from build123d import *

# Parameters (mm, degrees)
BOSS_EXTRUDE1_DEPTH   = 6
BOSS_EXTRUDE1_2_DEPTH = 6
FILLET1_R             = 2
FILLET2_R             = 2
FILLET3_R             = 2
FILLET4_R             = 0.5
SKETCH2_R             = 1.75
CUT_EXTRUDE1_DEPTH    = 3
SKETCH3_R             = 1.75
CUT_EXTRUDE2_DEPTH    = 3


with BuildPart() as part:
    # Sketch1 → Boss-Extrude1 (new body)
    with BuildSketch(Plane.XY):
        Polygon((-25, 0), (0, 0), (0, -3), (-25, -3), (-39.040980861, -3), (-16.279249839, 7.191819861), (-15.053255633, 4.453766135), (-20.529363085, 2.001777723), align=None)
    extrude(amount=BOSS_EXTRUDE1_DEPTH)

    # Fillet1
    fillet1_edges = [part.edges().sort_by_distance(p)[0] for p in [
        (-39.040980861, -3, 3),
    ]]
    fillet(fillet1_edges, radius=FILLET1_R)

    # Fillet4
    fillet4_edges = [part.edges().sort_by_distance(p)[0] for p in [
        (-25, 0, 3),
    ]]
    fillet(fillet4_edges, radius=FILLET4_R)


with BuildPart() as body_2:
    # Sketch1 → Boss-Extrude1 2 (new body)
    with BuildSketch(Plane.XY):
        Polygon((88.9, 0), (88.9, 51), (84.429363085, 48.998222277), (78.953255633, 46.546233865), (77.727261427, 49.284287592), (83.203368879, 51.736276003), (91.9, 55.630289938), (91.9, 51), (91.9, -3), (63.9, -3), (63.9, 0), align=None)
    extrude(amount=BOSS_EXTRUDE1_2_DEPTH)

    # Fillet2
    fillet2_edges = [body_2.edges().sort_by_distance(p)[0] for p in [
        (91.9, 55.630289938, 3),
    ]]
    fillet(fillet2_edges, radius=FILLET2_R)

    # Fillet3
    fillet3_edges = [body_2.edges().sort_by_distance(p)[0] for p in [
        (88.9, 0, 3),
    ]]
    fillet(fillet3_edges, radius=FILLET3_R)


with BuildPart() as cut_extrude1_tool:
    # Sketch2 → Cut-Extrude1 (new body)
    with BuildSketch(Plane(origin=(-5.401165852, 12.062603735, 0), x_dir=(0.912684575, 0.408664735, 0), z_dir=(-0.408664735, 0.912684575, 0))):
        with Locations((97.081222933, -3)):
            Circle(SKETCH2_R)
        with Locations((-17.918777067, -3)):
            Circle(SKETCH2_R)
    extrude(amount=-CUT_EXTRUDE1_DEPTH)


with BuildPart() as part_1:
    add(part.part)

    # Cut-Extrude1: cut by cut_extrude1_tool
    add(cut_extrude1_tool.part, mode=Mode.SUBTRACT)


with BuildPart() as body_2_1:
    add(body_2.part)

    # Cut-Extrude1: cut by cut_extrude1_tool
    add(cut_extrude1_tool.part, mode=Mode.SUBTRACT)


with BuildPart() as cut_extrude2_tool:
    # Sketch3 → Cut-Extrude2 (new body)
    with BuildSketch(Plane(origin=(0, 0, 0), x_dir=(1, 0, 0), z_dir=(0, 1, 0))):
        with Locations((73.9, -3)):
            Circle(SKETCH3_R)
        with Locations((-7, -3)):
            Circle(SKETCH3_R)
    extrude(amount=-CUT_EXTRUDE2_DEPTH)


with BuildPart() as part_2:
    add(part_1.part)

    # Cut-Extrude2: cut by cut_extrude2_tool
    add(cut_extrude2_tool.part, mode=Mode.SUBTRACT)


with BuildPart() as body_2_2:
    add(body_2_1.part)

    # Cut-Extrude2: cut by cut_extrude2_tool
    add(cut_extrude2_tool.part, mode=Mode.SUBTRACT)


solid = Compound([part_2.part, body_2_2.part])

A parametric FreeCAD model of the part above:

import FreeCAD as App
import Part
import Sketcher

V = App.Vector


def edges_at(feature, points):
    """Names of the edges that pass closest to the given points."""
    edges = feature.Shape.Edges
    near = lambda p: min(range(len(edges)), key=lambda i: edges[i].distToShape(Part.Vertex(*p))[0])
    return sorted({f"Edge{near(p) + 1}" for p in points})

doc = App.newDocument("Part")
body = doc.addObject("PartDesign::Body", "Body")

# Sketch on XY plane
sketch1 = body.newObject("Sketcher::SketchObject", "Sketch")
sketch1.AttachmentSupport = (doc.getObject("XY_Plane"), [""])
sketch1.MapMode = "FlatFace"
sketch1.addGeometry([
    Part.LineSegment(V(0, 0, 0), V(-25, 0, 0)),  # 0
    Part.LineSegment(V(-25, 0, 0), V(-20.529363, 2.001778, 0)),  # 1
    Part.LineSegment(V(-20.529363, 2.001778, 0), V(-15.053256, 4.453766, 0)),  # 2
    Part.LineSegment(V(-15.053256, 4.453766, 0), V(-16.27925, 7.19182, 0)),  # 3
    Part.LineSegment(V(-16.27925, 7.19182, 0), V(-39.040981, -3, 0)),  # 4
    Part.LineSegment(V(-39.040981, -3, 0), V(0, -3, 0)),  # 5
    Part.LineSegment(V(0, -3, 0), V(0, 0, 0)),  # 6
], False)
sketch1.addConstraint([
    Sketcher.Constraint("Coincident", 0, 2, 1, 1),
    Sketcher.Constraint("Coincident", 1, 2, 2, 1),
    Sketcher.Constraint("Coincident", 2, 2, 3, 1),
    Sketcher.Constraint("Coincident", 3, 2, 4, 1),
    Sketcher.Constraint("Coincident", 4, 2, 5, 1),
    Sketcher.Constraint("Coincident", 5, 2, 6, 1),
    Sketcher.Constraint("Coincident", 6, 2, 0, 1),
    Sketcher.Constraint("Horizontal", 0),
    Sketcher.Constraint("Horizontal", 5),
    Sketcher.Constraint("Vertical", 6),
    Sketcher.Constraint("Coincident", 6, 2, -1, 1),
    Sketcher.Constraint("Parallel", 1, 2),
    Sketcher.Constraint("Perpendicular", 2, 3),
    Sketcher.Constraint("Perpendicular", 3, 4),
    Sketcher.Constraint("DistanceX", 0, 2, 0, 1, 25.0),
    Sketcher.Constraint("DistanceY", 6, 1, 6, 2, 3.0),
    Sketcher.Constraint("Distance", 2, 6.0),
    Sketcher.Constraint("Distance", 3, 3.0),
    Sketcher.Constraint("DistanceX", 5, 1, 5, 2, 39.040981),
    Sketcher.Constraint("Distance", 4, 24.939318),
])
pad1 = body.newObject("PartDesign::Pad", "Pad")
pad1.Profile = sketch1
pad1.Length = 6
doc.recompute()

fillet = body.newObject("PartDesign::Fillet", "Fillet")
fillet.Base = (pad1, edges_at(pad1, [(-39.041, -3, 3)]))
fillet.Radius = 2
doc.recompute()

fillet2 = body.newObject("PartDesign::Fillet", "Fillet001")
fillet2.Base = (fillet, edges_at(fillet, [(-25, 0, 3)]))
fillet2.Radius = 0.5
body2 = doc.addObject("PartDesign::Body", "Body001")

# Sketch on XY plane
sketch2 = body2.newObject("Sketcher::SketchObject", "Sketch001")
sketch2.AttachmentSupport = (doc.getObject("XY_Plane001"), [""])
sketch2.MapMode = "FlatFace"
sketch2.addGeometry([
    Part.LineSegment(V(88.9, 51, 0), V(88.9, 0, 0)),  # 0
    Part.LineSegment(V(88.9, 0, 0), V(63.9, 0, 0)),  # 1
    Part.LineSegment(V(63.9, 0, 0), V(63.9, -3, 0)),  # 2
    Part.LineSegment(V(63.9, -3, 0), V(91.9, -3, 0)),  # 3
    Part.LineSegment(V(91.9, -3, 0), V(91.9, 55.63029, 0)),  # 4
    Part.LineSegment(V(91.9, 55.63029, 0), V(83.203369, 51.736276, 0)),  # 5
    Part.LineSegment(V(83.203369, 51.736276, 0), V(77.727261, 49.284288, 0)),  # 6
    Part.LineSegment(V(77.727261, 49.284288, 0), V(78.953256, 46.546234, 0)),  # 7
    Part.LineSegment(V(78.953256, 46.546234, 0), V(84.429363, 48.998222, 0)),  # 8
    Part.LineSegment(V(84.429363, 48.998222, 0), V(88.9, 51, 0)),  # 9
], False)
sketch2.addConstraint([
    Sketcher.Constraint("Coincident", 0, 2, 1, 1),
    Sketcher.Constraint("Coincident", 1, 2, 2, 1),
    Sketcher.Constraint("Coincident", 2, 2, 3, 1),
    Sketcher.Constraint("Coincident", 3, 2, 4, 1),
    Sketcher.Constraint("Coincident", 4, 2, 5, 1),
    Sketcher.Constraint("Coincident", 5, 2, 6, 1),
    Sketcher.Constraint("Coincident", 6, 2, 7, 1),
    Sketcher.Constraint("Coincident", 7, 2, 8, 1),
    Sketcher.Constraint("Coincident", 8, 2, 9, 1),
    Sketcher.Constraint("Coincident", 9, 2, 0, 1),
    Sketcher.Constraint("Vertical", 0),
    Sketcher.Constraint("Horizontal", 1),
    Sketcher.Constraint("Vertical", 2),
    Sketcher.Constraint("Horizontal", 3),
    Sketcher.Constraint("Vertical", 4),
    Sketcher.Constraint("PointOnObject", 0, 2, -1),
    Sketcher.Constraint("Parallel", 5, 6),
    Sketcher.Constraint("Perpendicular", 6, 7),
    Sketcher.Constraint("Perpendicular", 7, 8),
    Sketcher.Constraint("Parallel", 8, 9),
    Sketcher.Constraint("Equal", 6, 8),
    Sketcher.Constraint("DistanceX", 1, 2, 1, 1, 25.0),
    Sketcher.Constraint("DistanceX", 3, 1, 3, 2, 28.0),
    Sketcher.Constraint("DistanceY", 0, 2, 0, 1, 51.0),
    Sketcher.Constraint("DistanceY", 2, 2, 2, 1, 3.0),
    Sketcher.Constraint("Distance", 6, 6.0),
    Sketcher.Constraint("Distance", 7, 3.0),
    Sketcher.Constraint("DistanceX", -1, 1, 0, 2, 88.9),
    Sketcher.Constraint("DistanceY", 4, 1, 4, 2, 58.63029),
    Sketcher.Constraint("DistanceX", -1, 1, 5, 2, 83.203369),
])
pad2 = body2.newObject("PartDesign::Pad", "Pad001")
pad2.Profile = sketch2
pad2.Length = 6
doc.recompute()

fillet3 = body2.newObject("PartDesign::Fillet", "Fillet002")
fillet3.Base = (pad2, edges_at(pad2, [(91.9, 55.63, 3)]))
fillet3.Radius = 2
doc.recompute()

fillet4 = body2.newObject("PartDesign::Fillet", "Fillet003")
fillet4.Base = (fillet3, edges_at(fillet3, [(88.9, 0, 3)]))
fillet4.Radius = 2
body3 = doc.addObject("PartDesign::Body", "Body002")
body3.AllowCompound = True

# Sketch on an angled plane
sketch3 = body3.newObject("Sketcher::SketchObject", "Sketch002")
sketch3.Placement = App.Placement(V(-5.401166, 12.062604, 0), App.Rotation(V(0.912684575, 0.408664735, 0), V(0, 0, -0.999999999), V(-0.408664735, 0.912684575, 0), "ZXY"))
sketch3.addGeometry([
    Part.Circle(V(97.081223, -3, 0), V(0, 0, 1), 1.75),
    Part.Circle(V(-17.918777, -3, 0), V(0, 0, 1), 1.75),
], False)
sketch3.addConstraint([
    Sketcher.Constraint("Equal", 0, 1),
    Sketcher.Constraint("Horizontal", 0, 3, 1, 3),
    Sketcher.Constraint("Diameter", 0, 3.5),
    Sketcher.Constraint("DistanceY", 0, 3, -1, 1, 3.0),
    Sketcher.Constraint("DistanceX", 1, 3, 0, 3, 115.0),
    Sketcher.Constraint("DistanceX", -1, 1, 0, 3, 97.081223),
])
pad3 = body3.newObject("PartDesign::Pad", "Pad002")
pad3.Profile = sketch3
pad3.Length = 3
pad3.Reversed = True
doc.recompute()

body4 = doc.addObject("PartDesign::Body", "Body003")
body4.BaseFeature = body3
boolean = body.newObject("PartDesign::Boolean", "Boolean")
boolean.Type = "Cut"
boolean.addObjects([body4])
doc.recompute()

boolean2 = body2.newObject("PartDesign::Boolean", "Boolean001")
boolean2.Type = "Cut"
boolean2.addObjects([body3])
body5 = doc.addObject("PartDesign::Body", "Body004")
body5.AllowCompound = True

# Sketch on XZ plane
sketch4 = body5.newObject("Sketcher::SketchObject", "Sketch003")
sketch4.AttachmentSupport = (doc.getObject("XZ_Plane004"), [""])
sketch4.MapMode = "FlatFace"
sketch4.addGeometry([
    Part.Circle(V(73.9, 3, 0), V(0, 0, 1), 1.75),
    Part.Circle(V(-7, 3, 0), V(0, 0, 1), 1.75),
], False)
sketch4.addConstraint([
    Sketcher.Constraint("Equal", 0, 1),
    Sketcher.Constraint("Horizontal", 0, 3, 1, 3),
    Sketcher.Constraint("Diameter", 0, 3.5),
    Sketcher.Constraint("DistanceY", -1, 1, 0, 3, 3.0),
    Sketcher.Constraint("DistanceX", 1, 3, -1, 1, 7.0),
    Sketcher.Constraint("DistanceX", -1, 1, 0, 3, 73.9),
])
pad4 = body5.newObject("PartDesign::Pad", "Pad003")
pad4.Profile = sketch4
pad4.Length = 3
doc.recompute()

body6 = doc.addObject("PartDesign::Body", "Body005")
body6.BaseFeature = body5
boolean3 = body.newObject("PartDesign::Boolean", "Boolean002")
boolean3.Type = "Cut"
boolean3.addObjects([body6])
doc.recompute()

boolean4 = body2.newObject("PartDesign::Boolean", "Boolean003")
boolean4.Type = "Cut"
boolean4.addObjects([body5])

doc.recompute()
